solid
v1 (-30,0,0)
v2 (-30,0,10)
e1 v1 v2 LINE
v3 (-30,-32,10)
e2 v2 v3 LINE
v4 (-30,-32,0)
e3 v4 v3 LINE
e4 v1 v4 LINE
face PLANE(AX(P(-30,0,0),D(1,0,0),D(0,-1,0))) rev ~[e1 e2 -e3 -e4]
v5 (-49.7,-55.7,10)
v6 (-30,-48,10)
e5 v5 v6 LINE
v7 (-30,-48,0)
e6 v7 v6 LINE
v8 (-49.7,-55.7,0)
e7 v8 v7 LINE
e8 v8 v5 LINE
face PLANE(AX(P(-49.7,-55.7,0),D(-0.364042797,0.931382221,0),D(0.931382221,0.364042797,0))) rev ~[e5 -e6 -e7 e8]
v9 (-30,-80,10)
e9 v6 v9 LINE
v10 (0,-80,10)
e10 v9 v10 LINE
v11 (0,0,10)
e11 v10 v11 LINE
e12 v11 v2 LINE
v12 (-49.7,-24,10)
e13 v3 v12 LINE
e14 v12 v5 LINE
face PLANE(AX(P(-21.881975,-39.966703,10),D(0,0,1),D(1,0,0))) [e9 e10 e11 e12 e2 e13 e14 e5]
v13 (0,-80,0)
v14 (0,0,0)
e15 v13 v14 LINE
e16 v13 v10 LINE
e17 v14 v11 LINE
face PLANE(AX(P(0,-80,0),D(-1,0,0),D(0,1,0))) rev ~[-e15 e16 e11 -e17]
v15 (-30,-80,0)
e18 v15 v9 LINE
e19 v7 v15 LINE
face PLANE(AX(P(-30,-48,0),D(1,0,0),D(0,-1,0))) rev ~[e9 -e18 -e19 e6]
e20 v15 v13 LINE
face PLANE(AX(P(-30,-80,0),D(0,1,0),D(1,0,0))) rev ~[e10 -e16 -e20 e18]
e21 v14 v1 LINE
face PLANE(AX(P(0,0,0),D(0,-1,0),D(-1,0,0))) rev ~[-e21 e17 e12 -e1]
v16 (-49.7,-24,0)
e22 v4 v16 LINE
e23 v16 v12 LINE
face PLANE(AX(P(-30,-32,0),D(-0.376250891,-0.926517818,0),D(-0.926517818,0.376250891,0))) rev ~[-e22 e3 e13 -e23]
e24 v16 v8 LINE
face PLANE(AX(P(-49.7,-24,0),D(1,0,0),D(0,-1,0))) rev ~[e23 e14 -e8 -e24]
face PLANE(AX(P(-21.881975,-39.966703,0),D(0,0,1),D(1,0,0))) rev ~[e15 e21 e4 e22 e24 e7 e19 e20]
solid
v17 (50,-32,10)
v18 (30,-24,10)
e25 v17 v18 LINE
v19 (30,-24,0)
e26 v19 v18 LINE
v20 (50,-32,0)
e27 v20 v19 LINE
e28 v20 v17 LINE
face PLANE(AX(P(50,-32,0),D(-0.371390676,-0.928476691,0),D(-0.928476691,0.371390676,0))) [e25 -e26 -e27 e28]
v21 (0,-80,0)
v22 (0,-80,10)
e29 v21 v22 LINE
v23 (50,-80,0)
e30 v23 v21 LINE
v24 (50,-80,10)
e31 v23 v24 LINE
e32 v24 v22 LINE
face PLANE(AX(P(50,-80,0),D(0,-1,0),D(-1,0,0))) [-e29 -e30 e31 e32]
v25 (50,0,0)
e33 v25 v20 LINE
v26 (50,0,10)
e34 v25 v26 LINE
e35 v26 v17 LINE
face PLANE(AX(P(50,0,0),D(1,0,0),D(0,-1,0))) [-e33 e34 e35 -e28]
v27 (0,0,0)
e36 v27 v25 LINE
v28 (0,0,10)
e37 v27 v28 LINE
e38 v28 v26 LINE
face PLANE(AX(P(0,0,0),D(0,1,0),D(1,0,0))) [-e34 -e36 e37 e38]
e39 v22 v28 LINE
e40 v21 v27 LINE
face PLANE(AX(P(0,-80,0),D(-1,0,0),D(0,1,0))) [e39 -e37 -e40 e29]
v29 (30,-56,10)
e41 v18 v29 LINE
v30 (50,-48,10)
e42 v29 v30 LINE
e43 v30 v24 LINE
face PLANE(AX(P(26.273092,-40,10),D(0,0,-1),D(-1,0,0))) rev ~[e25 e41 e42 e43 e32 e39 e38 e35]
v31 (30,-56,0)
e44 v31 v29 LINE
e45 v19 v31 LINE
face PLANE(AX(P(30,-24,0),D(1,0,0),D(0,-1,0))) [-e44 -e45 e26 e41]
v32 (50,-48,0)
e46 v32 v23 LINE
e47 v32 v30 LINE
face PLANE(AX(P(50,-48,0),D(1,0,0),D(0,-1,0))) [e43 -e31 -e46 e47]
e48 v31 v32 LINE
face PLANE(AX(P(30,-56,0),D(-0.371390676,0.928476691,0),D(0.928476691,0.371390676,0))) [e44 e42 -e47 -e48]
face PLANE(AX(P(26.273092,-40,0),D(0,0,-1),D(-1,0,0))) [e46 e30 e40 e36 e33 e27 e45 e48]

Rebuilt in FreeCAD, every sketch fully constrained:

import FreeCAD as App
import Part
import Sketcher
Q = App.Units.Quantity


def add_polygon(sketch, points):
    """Adds a closed chain of lines whose ends are joined by coincident constraints."""
    first, n = sketch.GeometryCount, len(points)
    for a, b in zip(points, points[1:] + points[:1]):
        sketch.addGeometry(Part.LineSegment(App.Vector(*a, 0), App.Vector(*b, 0)), False)
    for i in range(n):
        sketch.addConstraint(Sketcher.Constraint("Coincident", first + i, 2, first + (i + 1) % n, 1))

doc = App.newDocument("Part")
body = doc.addObject("PartDesign::Body", "Body")

sketch1 = body.newObject("Sketcher::SketchObject", "Sketch")
sketch1.AttachmentSupport = (doc.getObject("XY_Plane"), [""])
sketch1.MapMode = "FlatFace"
add_polygon(sketch1, [(50, 0), (0, 0), (0, -80), (50, -80), (50, -48), (30, -56), (30, -24), (50, -32)])
sketch1.addConstraint([
    Sketcher.Constraint("Horizontal", 0),
    Sketcher.Constraint("Vertical", 1),
    Sketcher.Constraint("Horizontal", 2),
    Sketcher.Constraint("Vertical", 3),
    Sketcher.Constraint("Vertical", 5),
    Sketcher.Constraint("Vertical", 7),
    Sketcher.Constraint("Coincident", 0, 2, -1, 1),
    Sketcher.Constraint("Vertical", 3, 2, 6, 2),
    Sketcher.Constraint("Equal", 3, 5),
    Sketcher.Constraint("Equal", 5, 7),
    Sketcher.Constraint("Equal", 4, 6),
    Sketcher.Constraint("DistanceX", 0, 2, 0, 1, Q("50 mm")),
    Sketcher.Constraint("DistanceY", 1, 2, 1, 1, Q("80 mm")),
    Sketcher.Constraint("DistanceY", 3, 1, 3, 2, Q("32 mm")),
    Sketcher.Constraint("DistanceX", -1, 1, 4, 2, Q("30 mm")),
])
pad1 = body.newObject("PartDesign::Pad", "Pad")
pad1.Profile = sketch1
pad1.Length = 10
body2 = doc.addObject("PartDesign::Body", "Body001")

sketch2 = body2.newObject("Sketcher::SketchObject", "Sketch001")
sketch2.AttachmentSupport = (doc.getObject("XY_Plane001"), [""])
sketch2.MapMode = "FlatFace"
add_polygon(sketch2, [(0, 0), (-30, 0), (-30, -32), (-49.7, -24), (-49.7, -55.7), (-30, -48), (-30, -80), (0, -80)])
sketch2.addConstraint([
    Sketcher.Constraint("Horizontal", 0),
    Sketcher.Constraint("Vertical", 1),
    Sketcher.Constraint("Vertical", 3),
    Sketcher.Constraint("Vertical", 5),
    Sketcher.Constraint("Horizontal", 6),
    Sketcher.Constraint("Vertical", 7),
    Sketcher.Constraint("Coincident", 7, 2, -1, 1),
    Sketcher.Constraint("Vertical", 1, 2, 4, 2),
    Sketcher.Constraint("Equal", 1, 5),
    Sketcher.Constraint("DistanceX", 0, 2, 0, 1, Q("30 mm")),
    Sketcher.Constraint("DistanceY", 1, 2, 1, 1, Q("32 mm")),
    Sketcher.Constraint("DistanceY", 7, 1, 7, 2, Q("80 mm")),
    Sketcher.Constraint("DistanceY", 3, 2, 3, 1, Q("31.7 mm")),
    Sketcher.Constraint("DistanceY", 2, 2, -1, 1, Q("24 mm")),
    Sketcher.Constraint("DistanceX", 2, 2, -1, 1, Q("49.7 mm")),
])
pad2 = body2.newObject("PartDesign::Pad", "Pad001")
pad2.Profile = sketch2
pad2.Length = 10

doc.recompute()
